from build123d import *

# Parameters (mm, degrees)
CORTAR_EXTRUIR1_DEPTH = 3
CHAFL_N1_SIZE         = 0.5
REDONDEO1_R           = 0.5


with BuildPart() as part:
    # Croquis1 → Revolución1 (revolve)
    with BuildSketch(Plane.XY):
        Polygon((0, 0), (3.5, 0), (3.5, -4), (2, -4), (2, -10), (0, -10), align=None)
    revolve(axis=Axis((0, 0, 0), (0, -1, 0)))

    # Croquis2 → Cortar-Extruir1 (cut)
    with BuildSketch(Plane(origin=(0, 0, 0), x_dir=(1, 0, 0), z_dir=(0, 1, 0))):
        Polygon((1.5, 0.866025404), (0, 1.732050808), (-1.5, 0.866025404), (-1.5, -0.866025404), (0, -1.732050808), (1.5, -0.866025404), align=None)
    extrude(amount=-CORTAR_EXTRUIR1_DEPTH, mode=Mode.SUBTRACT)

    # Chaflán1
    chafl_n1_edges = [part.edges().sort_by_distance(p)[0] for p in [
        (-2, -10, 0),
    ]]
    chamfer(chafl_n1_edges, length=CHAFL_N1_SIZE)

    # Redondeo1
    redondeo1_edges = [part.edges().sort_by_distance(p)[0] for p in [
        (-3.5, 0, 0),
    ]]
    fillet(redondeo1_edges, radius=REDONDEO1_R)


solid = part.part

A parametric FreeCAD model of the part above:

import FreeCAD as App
import Part
import Sketcher
from FreeCAD import Vector
Q = App.Units.Quantity


def edges_at(feature, points):
    """Names of the edges that pass closest to the given points."""
    edges = feature.Shape.Edges
    near = lambda p: min(range(len(edges)), key=lambda i: edges[i].distToShape(Part.Vertex(*p))[0])
    return sorted({f"Edge{near(p) + 1}" for p in points})


def add_polygon(sketch, points):
    """Adds a closed chain of lines whose ends are joined by coincident constraints."""
    first, n = sketch.GeometryCount, len(points)
    for a, b in zip(points, points[1:] + points[:1]):
        sketch.addGeometry(Part.LineSegment(App.Vector(*a, 0), App.Vector(*b, 0)), False)
    for i in range(n):
        sketch.addConstraint(Sketcher.Constraint("Coincident", first + i, 2, first + (i + 1) % n, 1))

doc = App.newDocument("Part")
params = doc.addObject("Spreadsheet::Sheet", "Params")
for row, (alias, value) in enumerate([
    ("sketch1_width", "2 mm"),
    ("sketch1_height", "10 mm"),
    ("sketch1_height2", "6 mm"),
    ("sketch1_width2", "3.5 mm"),
    ("revolution_angle", "360 deg"),
    ("pocket1_length", "3 mm"),
    ("chamfer_size", "0.5 mm"),
    ("fillet_radius", "0.5 mm"),
], start=1):
    params.set(f"A{row}", alias)
    params.set(f"B{row}", "=" + value)
    params.setAlias(f"B{row}", alias)

body = doc.addObject("PartDesign::Body", "Body")

sketch1 = body.newObject("Sketcher::SketchObject", "Sketch")
sketch1.AttachmentSupport = (doc.getObject("XY_Plane"), [""])
sketch1.MapMode = "FlatFace"
add_polygon(sketch1, [(3.5, 0), (0, 0), (0, -10), (2, -10), (2, -4), (3.5, -4)])
sketch1.addConstraint([
    Sketcher.Constraint("Horizontal", 0),
    Sketcher.Constraint("Vertical", 1),
    Sketcher.Constraint("Horizontal", 2),
    Sketcher.Constraint("Vertical", 3),
    Sketcher.Constraint("Horizontal", 4),
    Sketcher.Constraint("Vertical", 5),
    Sketcher.Constraint("Coincident", 0, 2, -1, 1),
    Sketcher.Constraint("DistanceX", 2, 1, 2, 2, 2.0),
    Sketcher.Constraint("DistanceY", 1, 2, 1, 1, 10.0),
    Sketcher.Constraint("DistanceY", 3, 1, 3, 2, 6.0),
    Sketcher.Constraint("DistanceX", 0, 2, 0, 1, 3.5),
])
sketch1.setExpression("Constraints[13]", "Params.sketch1_width")
sketch1.setExpression("Constraints[14]", "Params.sketch1_height")
sketch1.setExpression("Constraints[15]", "Params.sketch1_height2")
sketch1.setExpression("Constraints[16]", "Params.sketch1_width2")
revolution = body.newObject("PartDesign::Revolution", "Revolution")
revolution.Profile = sketch1
revolution.ReferenceAxis = (sketch1, ["V_Axis"])
revolution.setExpression("Angle", "Params.revolution_angle")

sketch2 = body.newObject("Sketcher::SketchObject", "Sketch001")
sketch2.AttachmentSupport = (doc.getObject("XZ_Plane"), [""])
sketch2.MapMode = "FlatFace"
add_polygon(sketch2, [(1.5, -0.9), (0, -1.7), (-1.5, -0.9), (-1.5, 0.9), (0, 1.7), (1.5, 0.9)])
sketch2.addConstraint([
    Sketcher.Constraint("Vertical", 2),
    Sketcher.Constraint("Vertical", 5),
    Sketcher.Constraint("Symmetric", 0, 2, 3, 2, -1, 1),
    Sketcher.Constraint("Symmetric", 1, 2, 4, 2, -1, 1),
    Sketcher.Constraint("PointOnObject", 0, 2, -2),
    Sketcher.Constraint("Parallel", 0, 3),
    Sketcher.Constraint("Horizontal", 2, 2, 4, 2),
    Sketcher.Constraint("Angle", 0, Q("-150 deg")),
    Sketcher.Constraint("DistanceX", 2, 2, 4, 2, 3.0),
    Sketcher.Constraint("DistanceY", 2, 1, 2, 2, 1.732051),
])
pocket1 = body.newObject("PartDesign::Pocket", "Pocket")
pocket1.Profile = sketch2
pocket1.setExpression("Length", "Params.pocket1_length")
pocket1.Reversed = True
doc.recompute()

chamfer = body.newObject("PartDesign::Chamfer", "Chamfer")
chamfer.Base = (pocket1, edges_at(pocket1, [(-2, -10, 0)]))
chamfer.setExpression("Size", "Params.chamfer_size")
doc.recompute()

fillet = body.newObject("PartDesign::Fillet", "Fillet")
fillet.Base = (chamfer, edges_at(chamfer, [(-3.5, 0, 0)]))
fillet.setExpression("Radius", "Params.fillet_radius")

doc.recompute()
